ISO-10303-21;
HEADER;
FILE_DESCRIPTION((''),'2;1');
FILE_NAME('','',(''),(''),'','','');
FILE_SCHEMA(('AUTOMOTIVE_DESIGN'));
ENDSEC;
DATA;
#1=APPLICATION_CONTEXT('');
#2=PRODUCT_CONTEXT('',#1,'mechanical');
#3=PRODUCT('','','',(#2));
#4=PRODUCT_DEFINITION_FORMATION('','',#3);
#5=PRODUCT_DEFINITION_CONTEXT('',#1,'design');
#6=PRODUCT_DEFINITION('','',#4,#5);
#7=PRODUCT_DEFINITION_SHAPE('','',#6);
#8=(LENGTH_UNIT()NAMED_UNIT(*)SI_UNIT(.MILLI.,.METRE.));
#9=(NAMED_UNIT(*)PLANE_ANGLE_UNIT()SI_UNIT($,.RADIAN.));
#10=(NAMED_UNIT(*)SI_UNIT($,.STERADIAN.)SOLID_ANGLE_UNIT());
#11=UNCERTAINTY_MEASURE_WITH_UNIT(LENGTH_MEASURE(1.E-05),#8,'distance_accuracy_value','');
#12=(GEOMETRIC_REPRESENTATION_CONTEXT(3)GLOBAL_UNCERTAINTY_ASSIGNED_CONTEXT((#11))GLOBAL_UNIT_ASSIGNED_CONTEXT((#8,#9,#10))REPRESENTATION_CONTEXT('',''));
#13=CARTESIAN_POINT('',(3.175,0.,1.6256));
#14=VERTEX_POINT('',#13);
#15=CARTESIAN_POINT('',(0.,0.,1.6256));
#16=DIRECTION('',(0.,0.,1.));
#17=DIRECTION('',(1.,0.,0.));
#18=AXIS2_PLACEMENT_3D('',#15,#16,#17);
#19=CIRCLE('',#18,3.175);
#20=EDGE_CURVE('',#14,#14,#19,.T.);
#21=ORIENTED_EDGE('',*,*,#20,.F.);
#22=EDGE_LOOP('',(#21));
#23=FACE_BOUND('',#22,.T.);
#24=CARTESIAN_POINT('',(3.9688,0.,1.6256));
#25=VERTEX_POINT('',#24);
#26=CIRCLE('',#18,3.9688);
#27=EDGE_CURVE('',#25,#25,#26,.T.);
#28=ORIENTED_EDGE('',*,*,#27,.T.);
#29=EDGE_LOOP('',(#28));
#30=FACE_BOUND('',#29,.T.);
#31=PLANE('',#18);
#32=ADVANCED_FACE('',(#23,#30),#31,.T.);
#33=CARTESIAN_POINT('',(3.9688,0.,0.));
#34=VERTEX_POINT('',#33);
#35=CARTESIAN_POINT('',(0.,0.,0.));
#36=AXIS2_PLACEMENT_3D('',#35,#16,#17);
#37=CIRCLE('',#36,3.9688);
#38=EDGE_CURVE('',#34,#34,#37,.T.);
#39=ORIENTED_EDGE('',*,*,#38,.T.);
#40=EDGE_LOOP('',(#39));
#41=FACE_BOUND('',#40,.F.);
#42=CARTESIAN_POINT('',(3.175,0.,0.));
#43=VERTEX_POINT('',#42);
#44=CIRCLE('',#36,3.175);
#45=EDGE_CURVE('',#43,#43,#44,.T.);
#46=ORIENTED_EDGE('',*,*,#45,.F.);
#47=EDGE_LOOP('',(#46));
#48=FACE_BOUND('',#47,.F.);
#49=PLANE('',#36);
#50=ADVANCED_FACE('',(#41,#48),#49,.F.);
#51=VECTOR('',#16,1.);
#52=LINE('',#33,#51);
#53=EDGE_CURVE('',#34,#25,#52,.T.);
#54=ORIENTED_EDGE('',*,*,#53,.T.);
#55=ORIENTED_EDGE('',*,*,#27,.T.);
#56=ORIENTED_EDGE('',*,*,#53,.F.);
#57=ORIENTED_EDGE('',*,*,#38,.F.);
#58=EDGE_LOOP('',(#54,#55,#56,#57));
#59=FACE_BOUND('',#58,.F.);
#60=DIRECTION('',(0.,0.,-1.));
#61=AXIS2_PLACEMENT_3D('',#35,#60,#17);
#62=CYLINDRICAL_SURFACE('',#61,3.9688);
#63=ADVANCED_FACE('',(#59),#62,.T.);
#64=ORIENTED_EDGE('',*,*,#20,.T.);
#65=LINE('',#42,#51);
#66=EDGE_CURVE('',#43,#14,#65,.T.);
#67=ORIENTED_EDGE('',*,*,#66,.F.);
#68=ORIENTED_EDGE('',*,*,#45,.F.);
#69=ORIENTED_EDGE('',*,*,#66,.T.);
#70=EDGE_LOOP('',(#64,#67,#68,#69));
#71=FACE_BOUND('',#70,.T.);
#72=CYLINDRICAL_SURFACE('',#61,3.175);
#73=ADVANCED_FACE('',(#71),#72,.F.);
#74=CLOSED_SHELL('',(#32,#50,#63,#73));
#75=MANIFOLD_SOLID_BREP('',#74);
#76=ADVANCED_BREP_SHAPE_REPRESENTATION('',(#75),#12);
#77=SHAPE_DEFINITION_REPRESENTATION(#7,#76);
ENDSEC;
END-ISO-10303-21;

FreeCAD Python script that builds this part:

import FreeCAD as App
import Part
import Sketcher
Q = App.Units.Quantity

doc = App.newDocument("Part")
body = doc.addObject("PartDesign::Body", "Body")

sketch1 = body.newObject("Sketcher::SketchObject", "Sketch")
sketch1.AttachmentSupport = (doc.getObject("XY_Plane"), [""])
sketch1.MapMode = "FlatFace"
sketch1.addGeometry(Part.Circle(App.Vector(0, 0, 0), App.Vector(0, 0, 1), 4), False)
sketch1.addGeometry(Part.Circle(App.Vector(0, 0, 0), App.Vector(0, 0, 1), 3.2), False)
sketch1.addConstraint(Sketcher.Constraint("Coincident", 0, 3, -1, 1))
sketch1.addConstraint(Sketcher.Constraint("Coincident", 1, 3, -1, 1))
sketch1.addConstraint(Sketcher.Constraint("Diameter", 1, Q("0.25 in")))
sketch1.addConstraint(Sketcher.Constraint("Diameter", 0, Q("0.3125 in")))
pad1 = body.newObject("PartDesign::Pad", "Pad")
pad1.Profile = sketch1
pad1.Length = Q("0.064 in")

doc.recompute()
